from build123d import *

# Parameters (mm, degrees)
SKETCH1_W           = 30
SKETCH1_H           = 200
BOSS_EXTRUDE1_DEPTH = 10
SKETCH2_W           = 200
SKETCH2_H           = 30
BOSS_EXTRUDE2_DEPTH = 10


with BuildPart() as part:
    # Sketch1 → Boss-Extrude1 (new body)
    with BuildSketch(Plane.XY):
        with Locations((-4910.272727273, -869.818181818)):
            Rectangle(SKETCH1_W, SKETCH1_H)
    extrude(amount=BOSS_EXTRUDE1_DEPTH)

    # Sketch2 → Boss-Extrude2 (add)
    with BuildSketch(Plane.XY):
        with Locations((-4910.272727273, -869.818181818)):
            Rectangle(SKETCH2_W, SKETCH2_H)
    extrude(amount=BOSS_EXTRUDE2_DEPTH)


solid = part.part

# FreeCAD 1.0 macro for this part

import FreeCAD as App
import Part
import Sketcher

V = App.Vector


def add_polygon(sketch, points):
    """Adds a closed chain of lines whose ends are joined by coincident constraints."""
    first, n = sketch.GeometryCount, len(points)
    for a, b in zip(points, points[1:] + points[:1]):
        sketch.addGeometry(Part.LineSegment(App.Vector(*a, 0), App.Vector(*b, 0)), False)
    for i in range(n):
        sketch.addConstraint(Sketcher.Constraint("Coincident", first + i, 2, first + (i + 1) % n, 1))

doc = App.newDocument("Part")
body = doc.addObject("PartDesign::Body", "Body")

# Sketch on XY plane
sketch1 = body.newObject("Sketcher::SketchObject", "Sketch")
sketch1.AttachmentSupport = (doc.getObject("XY_Plane"), [""])
sketch1.MapMode = "FlatFace"
add_polygon(sketch1, [(-4925, -770), (-4925, -970), (-4895, -970), (-4895, -770)])  # lines 0-3
sketch1.addConstraint(Sketcher.Constraint("Vertical", 0))
sketch1.addConstraint(Sketcher.Constraint("Horizontal", 1))
sketch1.addConstraint(Sketcher.Constraint("Vertical", 2))
sketch1.addConstraint(Sketcher.Constraint("Horizontal", 3))
sketch1.addConstraint(Sketcher.Constraint("DistanceX", 1, 1, 1, 2, 30.0))
sketch1.addConstraint(Sketcher.Constraint("DistanceY", 0, 2, 0, 1, 200.0))
sketch1.addConstraint(Sketcher.Constraint("DistanceY", 0, 2, -1, 1, 969.818182))
sketch1.addConstraint(Sketcher.Constraint("DistanceX", 0, 2, -1, 1, 4925.272727))
pad1 = body.newObject("PartDesign::Pad", "Pad")
pad1.Profile = sketch1
pad1.Length = 10

# Sketch on XY plane
sketch2 = body.newObject("Sketcher::SketchObject", "Sketch001")
sketch2.AttachmentSupport = (doc.getObject("XY_Plane"), [""])
sketch2.MapMode = "FlatFace"
add_polygon(sketch2, [(-5010, -855), (-5010, -885), (-4810, -885), (-4810, -855)])  # lines 0-3
sketch2.addConstraint(Sketcher.Constraint("Vertical", 0))
sketch2.addConstraint(Sketcher.Constraint("Horizontal", 1))
sketch2.addConstraint(Sketcher.Constraint("Vertical", 2))
sketch2.addConstraint(Sketcher.Constraint("Horizontal", 3))
sketch2.addConstraint(Sketcher.Constraint("DistanceX", 1, 1, 1, 2, 200.0))
sketch2.addConstraint(Sketcher.Constraint("DistanceY", 0, 2, 0, 1, 30.0))
sketch2.addConstraint(Sketcher.Constraint("DistanceY", 0, 2, -1, 1, 884.818182))
sketch2.addConstraint(Sketcher.Constraint("DistanceX", 0, 2, -1, 1, 5010.272727))
pad2 = body.newObject("PartDesign::Pad", "Pad001")
pad2.Profile = sketch2
pad2.Length = 10

doc.recompute()
